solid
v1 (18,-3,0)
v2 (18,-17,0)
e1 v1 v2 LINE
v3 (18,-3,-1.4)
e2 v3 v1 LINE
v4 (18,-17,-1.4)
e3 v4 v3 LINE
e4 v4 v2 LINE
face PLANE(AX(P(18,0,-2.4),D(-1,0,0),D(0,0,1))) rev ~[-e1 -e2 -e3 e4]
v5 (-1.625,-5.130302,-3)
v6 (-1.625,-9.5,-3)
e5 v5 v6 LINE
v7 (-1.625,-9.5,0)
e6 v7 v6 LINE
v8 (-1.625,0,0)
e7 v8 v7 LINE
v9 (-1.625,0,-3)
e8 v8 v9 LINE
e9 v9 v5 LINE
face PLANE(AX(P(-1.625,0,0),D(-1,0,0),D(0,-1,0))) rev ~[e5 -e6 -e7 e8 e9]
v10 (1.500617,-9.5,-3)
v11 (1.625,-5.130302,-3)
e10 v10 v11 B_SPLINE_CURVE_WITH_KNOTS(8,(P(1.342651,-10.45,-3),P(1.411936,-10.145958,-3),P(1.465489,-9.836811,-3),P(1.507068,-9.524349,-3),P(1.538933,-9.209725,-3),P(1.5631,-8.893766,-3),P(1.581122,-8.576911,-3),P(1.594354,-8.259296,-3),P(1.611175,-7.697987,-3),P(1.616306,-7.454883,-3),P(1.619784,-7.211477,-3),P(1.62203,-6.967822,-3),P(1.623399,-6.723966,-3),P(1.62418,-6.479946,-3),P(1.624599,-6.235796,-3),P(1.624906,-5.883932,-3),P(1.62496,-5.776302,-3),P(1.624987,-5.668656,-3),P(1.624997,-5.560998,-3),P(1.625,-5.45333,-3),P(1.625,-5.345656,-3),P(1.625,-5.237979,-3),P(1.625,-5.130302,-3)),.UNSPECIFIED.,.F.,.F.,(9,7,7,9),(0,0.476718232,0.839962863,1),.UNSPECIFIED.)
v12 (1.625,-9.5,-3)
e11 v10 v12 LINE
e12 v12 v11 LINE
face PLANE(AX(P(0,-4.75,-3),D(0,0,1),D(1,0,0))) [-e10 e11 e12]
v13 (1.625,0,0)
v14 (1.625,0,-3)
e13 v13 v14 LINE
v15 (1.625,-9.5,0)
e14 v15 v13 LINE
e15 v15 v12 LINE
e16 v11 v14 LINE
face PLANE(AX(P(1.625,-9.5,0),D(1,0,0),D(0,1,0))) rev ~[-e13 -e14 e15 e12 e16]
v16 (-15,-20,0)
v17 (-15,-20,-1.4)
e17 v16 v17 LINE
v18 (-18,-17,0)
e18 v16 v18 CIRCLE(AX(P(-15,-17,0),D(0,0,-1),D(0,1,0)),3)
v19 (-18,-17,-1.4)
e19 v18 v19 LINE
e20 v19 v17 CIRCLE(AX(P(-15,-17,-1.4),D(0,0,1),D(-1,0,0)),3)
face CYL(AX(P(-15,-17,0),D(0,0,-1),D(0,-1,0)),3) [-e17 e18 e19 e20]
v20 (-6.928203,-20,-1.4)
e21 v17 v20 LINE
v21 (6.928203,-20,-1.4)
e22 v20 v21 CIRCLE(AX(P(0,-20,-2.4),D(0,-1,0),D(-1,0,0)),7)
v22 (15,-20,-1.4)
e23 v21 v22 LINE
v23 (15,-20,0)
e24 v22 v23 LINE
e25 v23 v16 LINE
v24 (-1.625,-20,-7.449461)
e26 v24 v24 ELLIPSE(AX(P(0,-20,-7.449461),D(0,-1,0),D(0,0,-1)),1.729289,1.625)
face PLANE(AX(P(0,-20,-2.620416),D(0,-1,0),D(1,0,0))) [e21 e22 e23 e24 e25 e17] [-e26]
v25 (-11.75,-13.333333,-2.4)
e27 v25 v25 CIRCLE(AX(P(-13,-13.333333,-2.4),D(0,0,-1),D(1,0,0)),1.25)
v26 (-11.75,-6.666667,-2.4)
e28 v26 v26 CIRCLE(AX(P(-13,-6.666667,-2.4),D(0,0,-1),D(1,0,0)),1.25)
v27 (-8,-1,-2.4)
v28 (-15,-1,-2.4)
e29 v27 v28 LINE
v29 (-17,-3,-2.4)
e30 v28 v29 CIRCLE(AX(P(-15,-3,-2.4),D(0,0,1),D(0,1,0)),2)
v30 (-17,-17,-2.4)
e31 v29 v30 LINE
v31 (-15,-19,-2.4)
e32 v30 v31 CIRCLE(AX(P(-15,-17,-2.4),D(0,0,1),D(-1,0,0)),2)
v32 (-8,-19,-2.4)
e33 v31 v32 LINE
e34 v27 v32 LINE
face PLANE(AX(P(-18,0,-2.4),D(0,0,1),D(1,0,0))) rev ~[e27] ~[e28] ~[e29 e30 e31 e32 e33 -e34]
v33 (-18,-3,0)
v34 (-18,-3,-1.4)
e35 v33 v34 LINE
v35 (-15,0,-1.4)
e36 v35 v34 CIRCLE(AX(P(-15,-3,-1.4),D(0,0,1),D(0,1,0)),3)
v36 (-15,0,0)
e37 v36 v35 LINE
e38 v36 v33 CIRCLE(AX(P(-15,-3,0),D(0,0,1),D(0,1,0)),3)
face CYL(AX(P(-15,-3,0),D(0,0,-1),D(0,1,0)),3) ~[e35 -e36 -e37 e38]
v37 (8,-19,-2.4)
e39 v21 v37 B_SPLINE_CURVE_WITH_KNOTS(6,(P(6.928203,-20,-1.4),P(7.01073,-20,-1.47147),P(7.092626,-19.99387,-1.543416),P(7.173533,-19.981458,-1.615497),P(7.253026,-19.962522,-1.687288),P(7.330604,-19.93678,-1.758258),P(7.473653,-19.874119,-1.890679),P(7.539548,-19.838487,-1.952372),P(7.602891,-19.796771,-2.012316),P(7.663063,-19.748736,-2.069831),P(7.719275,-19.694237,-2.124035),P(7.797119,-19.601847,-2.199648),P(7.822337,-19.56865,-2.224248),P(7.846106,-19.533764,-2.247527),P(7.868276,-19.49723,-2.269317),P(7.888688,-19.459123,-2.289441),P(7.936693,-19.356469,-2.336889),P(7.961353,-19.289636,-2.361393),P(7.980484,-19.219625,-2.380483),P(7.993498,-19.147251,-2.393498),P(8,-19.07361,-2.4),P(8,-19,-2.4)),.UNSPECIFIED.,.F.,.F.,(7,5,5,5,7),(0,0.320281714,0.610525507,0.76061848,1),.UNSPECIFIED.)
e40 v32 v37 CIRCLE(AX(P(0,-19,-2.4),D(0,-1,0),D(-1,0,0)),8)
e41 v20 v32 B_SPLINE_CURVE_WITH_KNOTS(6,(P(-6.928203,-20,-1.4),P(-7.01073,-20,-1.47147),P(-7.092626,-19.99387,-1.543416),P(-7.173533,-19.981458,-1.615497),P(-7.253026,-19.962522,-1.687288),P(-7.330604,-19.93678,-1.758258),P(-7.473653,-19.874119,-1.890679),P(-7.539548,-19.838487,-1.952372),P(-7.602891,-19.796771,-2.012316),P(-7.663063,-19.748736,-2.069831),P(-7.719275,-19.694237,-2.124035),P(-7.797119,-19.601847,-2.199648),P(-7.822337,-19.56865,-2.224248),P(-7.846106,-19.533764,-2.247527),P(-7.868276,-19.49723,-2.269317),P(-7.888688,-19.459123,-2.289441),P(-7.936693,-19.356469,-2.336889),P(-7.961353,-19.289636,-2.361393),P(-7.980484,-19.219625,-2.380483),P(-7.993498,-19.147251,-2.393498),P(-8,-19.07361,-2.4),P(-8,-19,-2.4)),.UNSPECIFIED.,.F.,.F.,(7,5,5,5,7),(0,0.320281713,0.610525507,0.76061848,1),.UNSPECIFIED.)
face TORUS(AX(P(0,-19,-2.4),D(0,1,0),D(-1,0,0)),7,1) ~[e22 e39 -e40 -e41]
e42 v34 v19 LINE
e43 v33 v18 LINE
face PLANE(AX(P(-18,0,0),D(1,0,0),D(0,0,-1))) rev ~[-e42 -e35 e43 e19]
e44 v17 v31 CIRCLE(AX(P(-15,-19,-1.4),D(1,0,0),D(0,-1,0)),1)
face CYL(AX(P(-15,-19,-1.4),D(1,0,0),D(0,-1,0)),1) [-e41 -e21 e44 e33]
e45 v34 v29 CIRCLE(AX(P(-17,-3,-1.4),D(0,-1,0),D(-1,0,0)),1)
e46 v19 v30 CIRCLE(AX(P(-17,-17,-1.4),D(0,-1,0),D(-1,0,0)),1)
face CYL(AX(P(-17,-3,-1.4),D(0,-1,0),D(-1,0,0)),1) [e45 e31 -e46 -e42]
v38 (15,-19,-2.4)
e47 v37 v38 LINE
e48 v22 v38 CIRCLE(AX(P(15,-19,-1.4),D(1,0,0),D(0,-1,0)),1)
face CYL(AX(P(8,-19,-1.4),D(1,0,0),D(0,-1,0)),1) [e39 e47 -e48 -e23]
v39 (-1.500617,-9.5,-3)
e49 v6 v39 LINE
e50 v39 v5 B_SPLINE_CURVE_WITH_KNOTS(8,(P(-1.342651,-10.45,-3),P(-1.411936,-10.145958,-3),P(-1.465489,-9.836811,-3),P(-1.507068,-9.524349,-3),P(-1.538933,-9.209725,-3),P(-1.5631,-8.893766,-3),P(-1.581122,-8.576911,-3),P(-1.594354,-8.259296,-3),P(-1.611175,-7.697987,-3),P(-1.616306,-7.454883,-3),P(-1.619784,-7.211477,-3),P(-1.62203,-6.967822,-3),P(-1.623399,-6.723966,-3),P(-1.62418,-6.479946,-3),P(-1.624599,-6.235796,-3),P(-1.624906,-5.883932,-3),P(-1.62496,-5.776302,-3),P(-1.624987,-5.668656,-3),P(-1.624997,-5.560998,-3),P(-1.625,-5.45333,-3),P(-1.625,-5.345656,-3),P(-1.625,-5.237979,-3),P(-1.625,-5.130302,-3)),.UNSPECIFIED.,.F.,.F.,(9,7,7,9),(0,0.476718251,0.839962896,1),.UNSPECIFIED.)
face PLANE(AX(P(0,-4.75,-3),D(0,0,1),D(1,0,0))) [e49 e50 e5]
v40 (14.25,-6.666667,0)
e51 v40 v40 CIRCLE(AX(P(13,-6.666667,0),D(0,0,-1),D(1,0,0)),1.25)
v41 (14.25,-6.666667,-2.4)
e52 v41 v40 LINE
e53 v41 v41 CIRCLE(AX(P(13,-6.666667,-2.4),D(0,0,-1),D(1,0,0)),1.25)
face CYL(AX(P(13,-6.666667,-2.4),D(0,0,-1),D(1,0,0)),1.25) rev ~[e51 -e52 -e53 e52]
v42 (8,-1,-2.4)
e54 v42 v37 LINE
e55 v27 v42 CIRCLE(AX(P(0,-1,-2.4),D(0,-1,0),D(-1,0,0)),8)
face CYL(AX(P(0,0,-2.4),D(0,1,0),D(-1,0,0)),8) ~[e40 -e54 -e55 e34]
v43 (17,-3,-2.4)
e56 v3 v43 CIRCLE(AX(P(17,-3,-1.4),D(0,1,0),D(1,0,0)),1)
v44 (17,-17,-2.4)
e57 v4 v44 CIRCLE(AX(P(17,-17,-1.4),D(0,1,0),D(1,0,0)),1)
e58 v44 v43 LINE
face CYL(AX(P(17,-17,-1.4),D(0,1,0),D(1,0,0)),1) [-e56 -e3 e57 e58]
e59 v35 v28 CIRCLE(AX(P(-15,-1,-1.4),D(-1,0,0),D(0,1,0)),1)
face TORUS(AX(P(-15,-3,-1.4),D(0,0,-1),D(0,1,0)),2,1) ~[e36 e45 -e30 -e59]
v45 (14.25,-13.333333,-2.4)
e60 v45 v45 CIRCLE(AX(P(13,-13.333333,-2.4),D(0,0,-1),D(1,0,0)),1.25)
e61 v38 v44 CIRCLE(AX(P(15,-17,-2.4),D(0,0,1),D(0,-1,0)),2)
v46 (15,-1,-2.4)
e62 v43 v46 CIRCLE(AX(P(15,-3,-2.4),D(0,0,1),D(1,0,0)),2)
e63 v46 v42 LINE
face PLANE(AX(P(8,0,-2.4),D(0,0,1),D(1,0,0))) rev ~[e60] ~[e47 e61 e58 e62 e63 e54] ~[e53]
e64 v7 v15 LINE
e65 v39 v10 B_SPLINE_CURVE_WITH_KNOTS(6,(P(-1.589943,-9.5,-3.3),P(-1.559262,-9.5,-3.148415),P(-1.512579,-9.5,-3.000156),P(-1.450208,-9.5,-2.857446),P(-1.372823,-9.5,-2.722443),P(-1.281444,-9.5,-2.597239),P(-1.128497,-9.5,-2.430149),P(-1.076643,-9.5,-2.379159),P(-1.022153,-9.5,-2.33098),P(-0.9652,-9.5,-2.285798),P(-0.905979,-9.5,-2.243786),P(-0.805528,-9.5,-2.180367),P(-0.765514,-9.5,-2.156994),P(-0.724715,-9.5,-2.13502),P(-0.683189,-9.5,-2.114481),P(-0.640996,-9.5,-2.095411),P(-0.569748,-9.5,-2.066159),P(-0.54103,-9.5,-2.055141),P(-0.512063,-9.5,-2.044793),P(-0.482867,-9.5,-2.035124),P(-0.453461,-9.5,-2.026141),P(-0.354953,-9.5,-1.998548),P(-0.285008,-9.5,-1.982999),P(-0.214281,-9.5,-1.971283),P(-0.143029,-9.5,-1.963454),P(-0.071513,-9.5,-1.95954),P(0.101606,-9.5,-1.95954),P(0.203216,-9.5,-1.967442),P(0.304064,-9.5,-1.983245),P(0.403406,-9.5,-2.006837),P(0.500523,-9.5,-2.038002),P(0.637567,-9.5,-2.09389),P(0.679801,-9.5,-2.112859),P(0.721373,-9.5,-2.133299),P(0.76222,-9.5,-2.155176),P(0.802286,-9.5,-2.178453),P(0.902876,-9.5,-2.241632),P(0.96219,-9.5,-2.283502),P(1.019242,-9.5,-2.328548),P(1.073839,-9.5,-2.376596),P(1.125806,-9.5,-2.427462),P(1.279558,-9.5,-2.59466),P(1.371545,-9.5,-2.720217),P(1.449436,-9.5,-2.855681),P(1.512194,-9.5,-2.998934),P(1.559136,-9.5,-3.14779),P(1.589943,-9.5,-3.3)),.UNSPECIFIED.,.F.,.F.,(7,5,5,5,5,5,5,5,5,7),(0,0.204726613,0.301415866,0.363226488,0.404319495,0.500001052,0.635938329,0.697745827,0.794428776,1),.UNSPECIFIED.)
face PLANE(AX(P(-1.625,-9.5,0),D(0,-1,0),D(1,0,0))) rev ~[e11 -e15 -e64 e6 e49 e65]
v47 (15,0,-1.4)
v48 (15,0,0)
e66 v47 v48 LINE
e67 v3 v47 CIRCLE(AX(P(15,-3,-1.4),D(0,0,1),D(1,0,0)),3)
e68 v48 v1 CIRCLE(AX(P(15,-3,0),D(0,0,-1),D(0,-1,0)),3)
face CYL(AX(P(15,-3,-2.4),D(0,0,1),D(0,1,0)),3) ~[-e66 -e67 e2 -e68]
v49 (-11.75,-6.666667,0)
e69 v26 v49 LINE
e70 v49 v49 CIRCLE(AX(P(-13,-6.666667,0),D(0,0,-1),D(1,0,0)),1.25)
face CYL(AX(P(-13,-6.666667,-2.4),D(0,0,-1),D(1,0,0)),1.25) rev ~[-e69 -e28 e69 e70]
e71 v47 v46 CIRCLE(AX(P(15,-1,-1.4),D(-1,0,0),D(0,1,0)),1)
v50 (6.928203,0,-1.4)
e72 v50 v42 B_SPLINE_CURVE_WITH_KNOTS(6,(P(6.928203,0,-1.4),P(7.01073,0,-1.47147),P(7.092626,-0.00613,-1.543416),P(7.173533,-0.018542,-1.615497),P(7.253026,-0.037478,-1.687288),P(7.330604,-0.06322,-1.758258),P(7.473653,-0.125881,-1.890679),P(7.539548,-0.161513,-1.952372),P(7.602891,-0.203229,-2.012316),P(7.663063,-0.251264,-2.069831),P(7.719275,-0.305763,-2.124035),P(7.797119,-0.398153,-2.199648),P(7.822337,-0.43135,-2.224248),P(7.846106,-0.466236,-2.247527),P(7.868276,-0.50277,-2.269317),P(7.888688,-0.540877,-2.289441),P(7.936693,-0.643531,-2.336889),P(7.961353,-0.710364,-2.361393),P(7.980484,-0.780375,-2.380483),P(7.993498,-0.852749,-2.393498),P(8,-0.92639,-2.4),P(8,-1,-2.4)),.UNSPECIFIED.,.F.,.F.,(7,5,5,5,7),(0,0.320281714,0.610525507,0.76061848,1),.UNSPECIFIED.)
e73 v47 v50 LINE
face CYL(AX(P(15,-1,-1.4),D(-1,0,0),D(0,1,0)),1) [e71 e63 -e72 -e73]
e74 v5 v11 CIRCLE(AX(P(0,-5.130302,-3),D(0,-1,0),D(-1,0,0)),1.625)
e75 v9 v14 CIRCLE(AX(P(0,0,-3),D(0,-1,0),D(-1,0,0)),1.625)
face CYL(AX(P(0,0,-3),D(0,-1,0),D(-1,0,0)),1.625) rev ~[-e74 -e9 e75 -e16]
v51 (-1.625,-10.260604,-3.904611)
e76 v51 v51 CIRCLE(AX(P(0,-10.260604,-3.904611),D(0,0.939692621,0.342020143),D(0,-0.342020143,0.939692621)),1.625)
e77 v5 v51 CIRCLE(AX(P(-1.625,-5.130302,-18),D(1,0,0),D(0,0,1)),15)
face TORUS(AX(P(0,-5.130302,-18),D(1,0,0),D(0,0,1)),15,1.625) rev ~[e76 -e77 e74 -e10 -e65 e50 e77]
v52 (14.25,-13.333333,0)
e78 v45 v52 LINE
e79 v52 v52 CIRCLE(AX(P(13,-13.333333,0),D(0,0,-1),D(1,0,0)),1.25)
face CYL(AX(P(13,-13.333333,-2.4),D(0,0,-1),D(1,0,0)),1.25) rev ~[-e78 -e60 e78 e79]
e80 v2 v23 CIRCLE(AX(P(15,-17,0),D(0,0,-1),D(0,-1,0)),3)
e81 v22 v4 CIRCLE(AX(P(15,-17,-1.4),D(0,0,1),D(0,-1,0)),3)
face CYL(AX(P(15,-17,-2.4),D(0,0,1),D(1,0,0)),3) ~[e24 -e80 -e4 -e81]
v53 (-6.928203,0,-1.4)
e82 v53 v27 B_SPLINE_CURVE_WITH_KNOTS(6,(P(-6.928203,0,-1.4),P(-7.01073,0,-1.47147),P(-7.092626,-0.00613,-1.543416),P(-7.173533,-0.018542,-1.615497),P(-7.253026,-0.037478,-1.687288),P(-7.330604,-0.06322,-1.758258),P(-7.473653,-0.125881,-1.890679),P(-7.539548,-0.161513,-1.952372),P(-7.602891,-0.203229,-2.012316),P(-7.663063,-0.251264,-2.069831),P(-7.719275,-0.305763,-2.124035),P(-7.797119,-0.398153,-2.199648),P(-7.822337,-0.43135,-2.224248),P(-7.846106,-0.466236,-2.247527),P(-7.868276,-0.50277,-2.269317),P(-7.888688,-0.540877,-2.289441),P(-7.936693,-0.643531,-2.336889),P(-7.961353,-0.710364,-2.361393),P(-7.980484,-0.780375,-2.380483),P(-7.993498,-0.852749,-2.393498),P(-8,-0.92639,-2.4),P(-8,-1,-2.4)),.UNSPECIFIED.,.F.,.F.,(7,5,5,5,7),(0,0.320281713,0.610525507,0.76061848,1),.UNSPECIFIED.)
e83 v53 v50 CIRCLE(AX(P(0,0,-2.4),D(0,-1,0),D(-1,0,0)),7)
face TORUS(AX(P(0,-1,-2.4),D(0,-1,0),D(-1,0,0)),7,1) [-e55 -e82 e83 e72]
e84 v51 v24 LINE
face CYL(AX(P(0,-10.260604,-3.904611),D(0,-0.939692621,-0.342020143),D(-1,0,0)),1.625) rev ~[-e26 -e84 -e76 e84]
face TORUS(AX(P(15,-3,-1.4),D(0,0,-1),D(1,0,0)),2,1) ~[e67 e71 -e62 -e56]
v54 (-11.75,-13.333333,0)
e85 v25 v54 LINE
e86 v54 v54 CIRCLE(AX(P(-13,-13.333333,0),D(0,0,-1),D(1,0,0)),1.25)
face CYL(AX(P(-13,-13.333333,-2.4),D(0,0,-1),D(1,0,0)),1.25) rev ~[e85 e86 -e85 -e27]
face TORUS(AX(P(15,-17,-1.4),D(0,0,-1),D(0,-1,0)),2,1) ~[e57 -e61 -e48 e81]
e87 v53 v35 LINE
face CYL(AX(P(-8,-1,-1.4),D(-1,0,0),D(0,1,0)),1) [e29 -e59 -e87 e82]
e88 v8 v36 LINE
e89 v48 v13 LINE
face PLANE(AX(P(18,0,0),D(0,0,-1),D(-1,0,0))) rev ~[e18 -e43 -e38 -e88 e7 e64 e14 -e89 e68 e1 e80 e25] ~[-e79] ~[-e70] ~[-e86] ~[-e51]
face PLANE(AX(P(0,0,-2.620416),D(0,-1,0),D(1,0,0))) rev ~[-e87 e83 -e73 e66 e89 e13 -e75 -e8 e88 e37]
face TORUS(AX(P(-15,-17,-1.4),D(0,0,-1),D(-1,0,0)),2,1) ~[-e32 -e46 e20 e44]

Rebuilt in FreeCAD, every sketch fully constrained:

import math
import FreeCAD as App
import Part
import Sketcher
Q = App.Units.Quantity


def edges_at(feature, points):
    """Names of the edges that pass closest to the given points."""
    edges = feature.Shape.Edges
    near = lambda p: min(range(len(edges)), key=lambda i: edges[i].distToShape(Part.Vertex(*p))[0])
    return sorted({f"Edge{near(p) + 1}" for p in points})


def add_polygon(sketch, points):
    """Adds a closed chain of lines whose ends are joined by coincident constraints."""
    first, n = sketch.GeometryCount, len(points)
    for a, b in zip(points, points[1:] + points[:1]):
        sketch.addGeometry(Part.LineSegment(App.Vector(*a, 0), App.Vector(*b, 0)), False)
    for i in range(n):
        sketch.addConstraint(Sketcher.Constraint("Coincident", first + i, 2, first + (i + 1) % n, 1))

doc = App.newDocument("Part")
params = doc.addObject("Spreadsheet::Sheet", "Params")
for row, (alias, value) in enumerate([
    ("sketch1_radius", "8 mm"),
    ("sketch1_width", "36 mm"),
    ("sketch1_height", "2.4 mm"),
    ("pad1_length", "20 mm"),
    ("sketch2_diameter", "3.25 mm"),
    ("sketch3_radius", "15 mm"),
    ("sketch4_height", "9.5 mm"),
    ("sketch4_width", "3.25 mm"),
    ("pocket1_length", "3 mm"),
    ("sketch5_diameter", "2.5 mm"),
    ("fillet_radius", "3 mm"),
    ("fillet2_radius", "1 mm"),
], start=1):
    params.set(f"A{row}", alias)
    params.set(f"B{row}", "=" + value)
    params.setAlias(f"B{row}", alias)

body = doc.addObject("PartDesign::Body", "Body")

# Sketch on XZ plane
sketch1 = body.newObject("Sketcher::SketchObject", "Sketch")
sketch1.AttachmentSupport = (doc.getObject("XZ_Plane"), [""])
sketch1.MapMode = "FlatFace"
sketch1.addGeometry(Part.LineSegment(App.Vector(18, 0, 0), App.Vector(-18, 0, 0)), False)
sketch1.addGeometry(Part.LineSegment(App.Vector(-18, 0, 0), App.Vector(-18, -2.4, 0)), False)
sketch1.addGeometry(Part.LineSegment(App.Vector(-18, -2.4, 0), App.Vector(-8, -2.4, 0)), False)
sketch1.addGeometry(Part.ArcOfCircle(Part.Circle(App.Vector(0, -2.4, 0), App.Vector(0, 0, 1), 8), math.radians(180), math.radians(360)), False)
sketch1.addGeometry(Part.LineSegment(App.Vector(8, -2.4, 0), App.Vector(18, -2.4, 0)), False)
sketch1.addGeometry(Part.LineSegment(App.Vector(18, -2.4, 0), App.Vector(18, 0, 0)), False)
sketch1.addConstraint(Sketcher.Constraint("Coincident", 0, 2, 1, 1))
sketch1.addConstraint(Sketcher.Constraint("Coincident", 1, 2, 2, 1))
sketch1.addConstraint(Sketcher.Constraint("Coincident", 2, 2, 3, 1))
sketch1.addConstraint(Sketcher.Constraint("Coincident", 3, 2, 4, 1))
sketch1.addConstraint(Sketcher.Constraint("Coincident", 4, 2, 5, 1))
sketch1.addConstraint(Sketcher.Constraint("Coincident", 5, 2, 0, 1))
sketch1.addConstraint(Sketcher.Constraint("Horizontal", 0))
sketch1.addConstraint(Sketcher.Constraint("Vertical", 1))
sketch1.addConstraint(Sketcher.Constraint("Horizontal", 2))
sketch1.addConstraint(Sketcher.Constraint("Horizontal", 4))
sketch1.addConstraint(Sketcher.Constraint("Vertical", 5))
sketch1.addConstraint(Sketcher.Constraint("Symmetric", 0, 2, 5, 2, -1, 1))
sketch1.addConstraint(Sketcher.Constraint("Symmetric", 2, 2, 3, 2, -2))
sketch1.addConstraint(Sketcher.Constraint("Horizontal", 3, 3, 1, 2))
sketch1.addConstraint(Sketcher.Constraint("Radius", 3, 8.0))
sketch1.addConstraint(Sketcher.Constraint("DistanceX", 0, 2, 0, 1, 36.0))
sketch1.addConstraint(Sketcher.Constraint("DistanceY", 1, 2, 1, 1, 2.4))
sketch1.setExpression("Constraints[14]", "Params.sketch1_radius")
sketch1.setExpression("Constraints[15]", "Params.sketch1_width")
sketch1.setExpression("Constraints[16]", "Params.sketch1_height")
pad1 = body.newObject("PartDesign::Pad", "Pad")
pad1.Profile = sketch1
pad1.setExpression("Length", "Params.pad1_length")

# Sketch on XZ plane
sketch2 = body.newObject("Sketcher::SketchObject", "Sketch001")
sketch2.AttachmentSupport = (doc.getObject("XZ_Plane"), [""])
sketch2.MapMode = "FlatFace"
sketch2.addGeometry(Part.Circle(App.Vector(0, -3, 0), App.Vector(0, 0, 1), 1.625), False)
sketch2.addConstraint(Sketcher.Constraint("PointOnObject", 0, 3, -2))
sketch2.addConstraint(Sketcher.Constraint("Diameter", 0, 3.25))
sketch2.addConstraint(Sketcher.Constraint("DistanceY", 0, 3, -1, 1, 3.0))
sketch2.setExpression("Constraints[1]", "Params.sketch2_diameter")

# Sketch on YZ plane
sketch3 = body.newObject("Sketcher::SketchObject", "Sketch002")
sketch3.AttachmentSupport = (doc.getObject("YZ_Plane"), [""])
sketch3.MapMode = "FlatFace"
sketch3.addGeometry(Part.LineSegment(App.Vector(0, -3, 0), App.Vector(-5.130302, -3, 0)), False)
sketch3.addGeometry(Part.ArcOfCircle(Part.Circle(App.Vector(-5.130302, -18, 0), App.Vector(0, 0, 1), 15), math.radians(90), math.radians(110)), False)
sketch3.addGeometry(Part.LineSegment(App.Vector(-10.260604, -3.904611, 0), App.Vector(-24.85976, -9.218269, 0)), False)
sketch3.addConstraint(Sketcher.Constraint("Tangent", 0, 2, 1, 1))
sketch3.addConstraint(Sketcher.Constraint("Tangent", 1, 2, 2, 1))
sketch3.addConstraint(Sketcher.Constraint("Horizontal", 0))
sketch3.addConstraint(Sketcher.Constraint("PointOnObject", 0, 1, -2))
sketch3.addConstraint(Sketcher.Constraint("Radius", 1, 15.0))
sketch3.addConstraint(Sketcher.Constraint("Angle", 2, Q("-160 deg")))
sketch3.addConstraint(Sketcher.Constraint("DistanceY", 1, 3, -1, 1, 18.0))
sketch3.addConstraint(Sketcher.Constraint("DistanceX", 0, 2, 0, 1, 5.130302))
sketch3.addConstraint(Sketcher.Constraint("DistanceX", 2, 2, -1, 1, 24.85976))
sketch3.setExpression("Constraints[4]", "Params.sketch3_radius")
doc.recompute()

subtractivepipe = body.newObject("PartDesign::SubtractivePipe", "SubtractivePipe")
subtractivepipe.Profile = sketch2
subtractivepipe.Spine = (sketch3, ["Edge1", "Edge2", "Edge3"])

# Sketch on XY plane
sketch4 = body.newObject("Sketcher::SketchObject", "Sketch003")
sketch4.AttachmentSupport = (doc.getObject("XY_Plane"), [""])
sketch4.MapMode = "FlatFace"
add_polygon(sketch4, [(1.625, -9.5), (1.625, 0), (-1.625, 0), (-1.625, -9.5)])  # lines 0-3
sketch4.addConstraint(Sketcher.Constraint("Vertical", 0))
sketch4.addConstraint(Sketcher.Constraint("Horizontal", 1))
sketch4.addConstraint(Sketcher.Constraint("Vertical", 2))
sketch4.addConstraint(Sketcher.Constraint("Horizontal", 3))
sketch4.addConstraint(Sketcher.Constraint("Symmetric", 0, 2, 1, 2, -1, 1))
sketch4.addConstraint(Sketcher.Constraint("DistanceY", 0, 1, 0, 2, 9.5))
sketch4.addConstraint(Sketcher.Constraint("DistanceX", 1, 2, 1, 1, 3.25))
sketch4.setExpression("Constraints[9]", "Params.sketch4_height")
sketch4.setExpression("Constraints[10]", "Params.sketch4_width")
pocket1 = body.newObject("PartDesign::Pocket", "Pocket")
pocket1.Profile = sketch4
pocket1.setExpression("Length", "Params.pocket1_length")

# Sketch on XY plane
sketch5 = body.newObject("Sketcher::SketchObject", "Sketch004")
sketch5.AttachmentSupport = (doc.getObject("XY_Plane"), [""])
sketch5.MapMode = "FlatFace"
sketch5.AttachmentOffset = App.Placement(App.Vector(0, 0, -2.4), App.Rotation())
sketch5.addGeometry(Part.Circle(App.Vector(13, -13.333333, 0), App.Vector(0, 0, 1), 1.25), False)
sketch5.addGeometry(Part.Circle(App.Vector(13, -6.666667, 0), App.Vector(0, 0, 1), 1.25), False)
sketch5.addGeometry(Part.Circle(App.Vector(-13, -13.333333, 0), App.Vector(0, 0, 1), 1.25), False)
sketch5.addGeometry(Part.Circle(App.Vector(-13, -6.666667, 0), App.Vector(0, 0, 1), 1.25), False)
sketch5.addConstraint(Sketcher.Constraint("Equal", 0, 1))
sketch5.addConstraint(Sketcher.Constraint("Equal", 1, 2))
sketch5.addConstraint(Sketcher.Constraint("Equal", 2, 3))
sketch5.addConstraint(Sketcher.Constraint("Symmetric", 0, 3, 2, 3, -2))
sketch5.addConstraint(Sketcher.Constraint("Symmetric", 1, 3, 3, 3, -2))
sketch5.addConstraint(Sketcher.Constraint("Vertical", 0, 3, 1, 3))
sketch5.addConstraint(Sketcher.Constraint("Diameter", 0, 2.5))
sketch5.addConstraint(Sketcher.Constraint("DistanceX", -1, 1, 0, 3, 13.0))
sketch5.addConstraint(Sketcher.Constraint("DistanceY", 0, 3, -1, 1, 13.333333))
sketch5.addConstraint(Sketcher.Constraint("DistanceY", 1, 3, -1, 1, 6.666667))
sketch5.setExpression("Constraints[6]", "Params.sketch5_diameter")
pocket2 = body.newObject("PartDesign::Pocket", "Pocket001")
pocket2.Profile = sketch5
pocket2.Type = "ThroughAll"
pocket2.Reversed = True
doc.recompute()

fillet = body.newObject("PartDesign::Fillet", "Fillet")
fillet.Base = (pocket2, edges_at(pocket2, [
    (18, -20, -1.2),
    (18, 0, -1.2),
    (-18, -20, -1.2),
    (-18, 0, -1.2),
]))
fillet.setExpression("Radius", "Params.fillet_radius")
doc.recompute()

fillet2 = body.newObject("PartDesign::Fillet", "Fillet001")
fillet2.Base = (fillet, edges_at(fillet, [
    (0, -20, -10.4),
    (-11.5, -20, -2.4),
    (11.5, -20, -2.4),
    (0, 0, -10.4),
]))
fillet2.setExpression("Radius", "Params.fillet2_radius")

doc.recompute()
